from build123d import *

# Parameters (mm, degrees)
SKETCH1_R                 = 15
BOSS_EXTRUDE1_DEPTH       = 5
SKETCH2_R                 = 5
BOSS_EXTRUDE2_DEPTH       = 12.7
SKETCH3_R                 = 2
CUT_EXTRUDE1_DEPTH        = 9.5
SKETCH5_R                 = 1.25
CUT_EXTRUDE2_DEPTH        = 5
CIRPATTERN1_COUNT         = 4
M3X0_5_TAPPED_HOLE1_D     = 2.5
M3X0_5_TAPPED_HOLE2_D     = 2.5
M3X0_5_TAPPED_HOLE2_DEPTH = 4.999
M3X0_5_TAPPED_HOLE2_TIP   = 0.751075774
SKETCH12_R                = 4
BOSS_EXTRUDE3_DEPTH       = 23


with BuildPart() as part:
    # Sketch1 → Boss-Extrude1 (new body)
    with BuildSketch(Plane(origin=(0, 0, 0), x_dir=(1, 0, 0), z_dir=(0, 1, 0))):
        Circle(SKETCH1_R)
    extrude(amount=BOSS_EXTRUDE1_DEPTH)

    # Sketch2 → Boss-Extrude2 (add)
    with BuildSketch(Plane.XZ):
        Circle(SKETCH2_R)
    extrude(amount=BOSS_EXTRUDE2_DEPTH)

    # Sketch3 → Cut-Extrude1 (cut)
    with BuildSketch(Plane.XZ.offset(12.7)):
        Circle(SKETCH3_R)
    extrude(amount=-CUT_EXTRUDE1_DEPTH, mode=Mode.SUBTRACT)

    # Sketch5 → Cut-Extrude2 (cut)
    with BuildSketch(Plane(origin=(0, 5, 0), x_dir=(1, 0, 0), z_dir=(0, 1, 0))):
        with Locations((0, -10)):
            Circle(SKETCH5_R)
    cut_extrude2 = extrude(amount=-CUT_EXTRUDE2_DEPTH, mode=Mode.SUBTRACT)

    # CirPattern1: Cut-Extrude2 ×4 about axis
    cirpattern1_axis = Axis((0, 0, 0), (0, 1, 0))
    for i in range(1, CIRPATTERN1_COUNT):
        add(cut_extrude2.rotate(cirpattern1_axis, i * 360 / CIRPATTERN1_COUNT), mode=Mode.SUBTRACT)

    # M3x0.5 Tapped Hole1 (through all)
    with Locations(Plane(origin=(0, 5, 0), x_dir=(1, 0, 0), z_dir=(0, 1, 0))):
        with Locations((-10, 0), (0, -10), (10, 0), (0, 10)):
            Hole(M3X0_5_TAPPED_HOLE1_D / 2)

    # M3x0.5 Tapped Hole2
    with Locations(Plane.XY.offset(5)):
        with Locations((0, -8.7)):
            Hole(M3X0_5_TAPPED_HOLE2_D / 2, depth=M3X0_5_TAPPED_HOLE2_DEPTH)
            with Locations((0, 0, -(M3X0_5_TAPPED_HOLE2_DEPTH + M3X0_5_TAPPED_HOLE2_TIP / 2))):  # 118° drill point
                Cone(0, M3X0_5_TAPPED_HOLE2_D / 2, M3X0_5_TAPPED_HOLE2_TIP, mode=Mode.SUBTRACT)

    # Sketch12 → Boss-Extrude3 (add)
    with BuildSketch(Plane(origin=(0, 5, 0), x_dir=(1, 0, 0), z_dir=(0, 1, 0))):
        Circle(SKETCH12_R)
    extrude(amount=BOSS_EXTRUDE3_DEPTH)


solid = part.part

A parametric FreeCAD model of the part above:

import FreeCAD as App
import Part
import Sketcher

V = App.Vector

doc = App.newDocument("Part")
body = doc.addObject("PartDesign::Body", "Body")

# Sketch on XZ plane
sketch1 = body.newObject("Sketcher::SketchObject", "Sketch")
sketch1.AttachmentSupport = (doc.getObject("XZ_Plane"), [""])
sketch1.MapMode = "FlatFace"
sketch1.addGeometry(Part.Circle(V(0, 0, 0), V(0, 0, 1), 15), False)
sketch1.addConstraint(Sketcher.Constraint("Coincident", 0, 3, -1, 1))
sketch1.addConstraint(Sketcher.Constraint("Diameter", 0, 30.0))
pad1 = body.newObject("PartDesign::Pad", "Pad")
pad1.Profile = sketch1
pad1.Length = 5
pad1.Reversed = True

# Sketch on XZ plane
sketch2 = body.newObject("Sketcher::SketchObject", "Sketch001")
sketch2.AttachmentSupport = (doc.getObject("XZ_Plane"), [""])
sketch2.MapMode = "FlatFace"
sketch2.addGeometry(Part.Circle(V(0, 0, 0), V(0, 0, 1), 5), False)
sketch2.addConstraint(Sketcher.Constraint("Coincident", 0, 3, -1, 1))
sketch2.addConstraint(Sketcher.Constraint("Diameter", 0, 10.0))
pad2 = body.newObject("PartDesign::Pad", "Pad001")
pad2.Profile = sketch2
pad2.Length = 12.7

# Sketch on XZ plane
sketch3 = body.newObject("Sketcher::SketchObject", "Sketch002")
sketch3.AttachmentSupport = (doc.getObject("XZ_Plane"), [""])
sketch3.MapMode = "FlatFace"
sketch3.AttachmentOffset = App.Placement(V(0, 0, 12.7), App.Rotation())
sketch3.addGeometry(Part.Circle(V(0, 0, 0), V(0, 0, 1), 2), False)
sketch3.addConstraint(Sketcher.Constraint("Coincident", 0, 3, -1, 1))
sketch3.addConstraint(Sketcher.Constraint("Diameter", 0, 4.0))
pocket1 = body.newObject("PartDesign::Pocket", "Pocket")
pocket1.Profile = sketch3
pocket1.Length = 9.5

# Sketch on XZ plane
sketch4 = body.newObject("Sketcher::SketchObject", "Sketch003")
sketch4.AttachmentSupport = (doc.getObject("XZ_Plane"), [""])
sketch4.MapMode = "FlatFace"
sketch4.AttachmentOffset = App.Placement(V(0, 0, -5), App.Rotation())
sketch4.addGeometry(Part.Circle(V(0, 10, 0), V(0, 0, 1), 1.2), False)
sketch4.addConstraint(Sketcher.Constraint("PointOnObject", 0, 3, -2))
sketch4.addConstraint(Sketcher.Constraint("Diameter", 0, 2.5))
sketch4.addConstraint(Sketcher.Constraint("DistanceY", -1, 1, 0, 3, 10.0))
pocket2 = body.newObject("PartDesign::Pocket", "Pocket001")
pocket2.Profile = sketch4
pocket2.Length = 5
pocket2.Reversed = True
doc.recompute()

polarpattern = body.newObject("PartDesign::PolarPattern", "PolarPattern")
polarpattern.Originals = [pocket2]
polarpattern.Axis = (doc.getObject("Y_Axis"), [""])
polarpattern.Angle = 360
polarpattern.Occurrences = 4
body.Tip = polarpattern

# Sketch on XZ plane
sketch5 = body.newObject("Sketcher::SketchObject", "Sketch004")
sketch5.AttachmentSupport = (doc.getObject("XZ_Plane"), [""])
sketch5.MapMode = "FlatFace"
sketch5.AttachmentOffset = App.Placement(V(0, 0, -5), App.Rotation())
sketch5.addGeometry(Part.Circle(V(-10, 0, 0), V(0, 0, 1), 1.2), False)
sketch5.addGeometry(Part.Circle(V(0, 10, 0), V(0, 0, 1), 1.2), False)
sketch5.addGeometry(Part.Circle(V(10, 0, 0), V(0, 0, 1), 1.2), False)
sketch5.addGeometry(Part.Circle(V(0, -10, 0), V(0, 0, 1), 1.2), False)
sketch5.addConstraint(Sketcher.Constraint("Equal", 0, 1))
sketch5.addConstraint(Sketcher.Constraint("Equal", 1, 2))
sketch5.addConstraint(Sketcher.Constraint("Equal", 2, 3))
sketch5.addConstraint(Sketcher.Constraint("Symmetric", 0, 3, 2, 3, -1, 1))
sketch5.addConstraint(Sketcher.Constraint("Symmetric", 1, 3, 3, 3, -1, 1))
sketch5.addConstraint(Sketcher.Constraint("PointOnObject", 0, 3, -1))
sketch5.addConstraint(Sketcher.Constraint("PointOnObject", 1, 3, -2))
sketch5.addConstraint(Sketcher.Constraint("Diameter", 0, 2.5))
sketch5.addConstraint(Sketcher.Constraint("DistanceX", 0, 3, -1, 1, 10.0))
sketch5.addConstraint(Sketcher.Constraint("DistanceY", -1, 1, 1, 3, 10.0))
doc.recompute()
hole = body.newObject("PartDesign::Hole", "Hole")
hole.Profile = sketch5
hole.ThreadType = "None"
hole.Diameter = 2.5
hole.DepthType = "ThroughAll"
hole.Reversed = True

# Sketch on XY plane
sketch6 = body.newObject("Sketcher::SketchObject", "Sketch005")
sketch6.AttachmentSupport = (doc.getObject("XY_Plane"), [""])
sketch6.MapMode = "FlatFace"
sketch6.AttachmentOffset = App.Placement(V(0, 0, 5), App.Rotation())
sketch6.addGeometry(Part.Circle(V(0, -8.7, 0), V(0, 0, 1), 1.2), False)
sketch6.addConstraint(Sketcher.Constraint("PointOnObject", 0, 3, -2))
sketch6.addConstraint(Sketcher.Constraint("Diameter", 0, 2.5))
sketch6.addConstraint(Sketcher.Constraint("DistanceY", 0, 3, -1, 1, 8.7))
doc.recompute()
hole2 = body.newObject("PartDesign::Hole", "Hole001")
hole2.Profile = sketch6
hole2.ThreadType = "None"
hole2.Diameter = 2.5
hole2.DepthType = "Dimension"
hole2.Depth = 4.999
hole2.DrillPoint = "Angled"
hole2.DrillPointAngle = 118

# Sketch on XZ plane
sketch7 = body.newObject("Sketcher::SketchObject", "Sketch006")
sketch7.AttachmentSupport = (doc.getObject("XZ_Plane"), [""])
sketch7.MapMode = "FlatFace"
sketch7.AttachmentOffset = App.Placement(V(0, 0, -5), App.Rotation())
sketch7.addGeometry(Part.Circle(V(0, 0, 0), V(0, 0, 1), 4), False)
sketch7.addConstraint(Sketcher.Constraint("Coincident", 0, 3, -1, 1))
sketch7.addConstraint(Sketcher.Constraint("Diameter", 0, 8.0))
pad3 = body.newObject("PartDesign::Pad", "Pad002")
pad3.Profile = sketch7
pad3.Length = 23
pad3.Reversed = True

doc.recompute()
